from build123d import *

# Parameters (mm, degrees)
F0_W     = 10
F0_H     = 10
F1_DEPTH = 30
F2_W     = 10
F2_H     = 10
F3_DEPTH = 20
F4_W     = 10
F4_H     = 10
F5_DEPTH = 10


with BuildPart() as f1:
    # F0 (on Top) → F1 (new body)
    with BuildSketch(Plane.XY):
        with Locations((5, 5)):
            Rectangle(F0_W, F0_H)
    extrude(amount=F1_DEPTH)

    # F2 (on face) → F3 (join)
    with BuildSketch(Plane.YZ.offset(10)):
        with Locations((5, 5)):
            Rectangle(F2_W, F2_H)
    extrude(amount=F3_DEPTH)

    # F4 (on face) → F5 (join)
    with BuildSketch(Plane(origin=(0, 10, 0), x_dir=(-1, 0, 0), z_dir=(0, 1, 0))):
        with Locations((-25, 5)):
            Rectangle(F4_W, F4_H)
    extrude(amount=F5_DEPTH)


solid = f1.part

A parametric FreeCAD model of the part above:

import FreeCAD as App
import Part
import Sketcher
from FreeCAD import Vector

doc = App.newDocument("Part")
body = doc.addObject("PartDesign::Body", "Body")

sketch1 = doc.addObject("Sketcher::SketchObject", "Sketch")
body.addObject(sketch1)
sketch1.AttachmentSupport = (doc.XY_Plane, [""])
sketch1.MapMode = "FlatFace"
sketch1.addGeometry([
    Part.LineSegment(Vector(0, 10, 0), Vector(0, 0, 0)),
    Part.LineSegment(Vector(0, 0, 0), Vector(10, 0, 0)),
    Part.LineSegment(Vector(10, 0, 0), Vector(10, 10, 0)),
    Part.LineSegment(Vector(10, 10, 0), Vector(0, 10, 0)),
], False)
sketch1.addConstraint([
    Sketcher.Constraint("Coincident", 0, 2, 1, 1),
    Sketcher.Constraint("Coincident", 1, 2, 2, 1),
    Sketcher.Constraint("Coincident", 2, 2, 3, 1),
    Sketcher.Constraint("Coincident", 3, 2, 0, 1),
    Sketcher.Constraint("Vertical", 0),
    Sketcher.Constraint("Horizontal", 1),
    Sketcher.Constraint("Vertical", 2),
    Sketcher.Constraint("Horizontal", 3),
    Sketcher.Constraint("Coincident", 0, 2, -1, 1),
    Sketcher.Constraint("Equal", 3, 0),
    Sketcher.Constraint("DistanceX", 1, 1, 1, 2, 10.0),
])
pad1 = doc.addObject("PartDesign::Pad", "Pad")
body.addObject(pad1)
pad1.Profile = sketch1
pad1.Length = 30

sketch2 = doc.addObject("Sketcher::SketchObject", "Sketch001")
body.addObject(sketch2)
sketch2.AttachmentSupport = (doc.YZ_Plane, [""])
sketch2.MapMode = "FlatFace"
sketch2.AttachmentOffset = App.Placement(Vector(0, 0, 10), App.Rotation())
sketch2.addGeometry([
    Part.LineSegment(Vector(0, 10, 0), Vector(0, 0, 0)),
    Part.LineSegment(Vector(0, 0, 0), Vector(10, 0, 0)),
    Part.LineSegment(Vector(10, 0, 0), Vector(10, 10, 0)),
    Part.LineSegment(Vector(10, 10, 0), Vector(0, 10, 0)),
], False)
sketch2.addConstraint([
    Sketcher.Constraint("Coincident", 0, 2, 1, 1),
    Sketcher.Constraint("Coincident", 1, 2, 2, 1),
    Sketcher.Constraint("Coincident", 2, 2, 3, 1),
    Sketcher.Constraint("Coincident", 3, 2, 0, 1),
    Sketcher.Constraint("Vertical", 0),
    Sketcher.Constraint("Horizontal", 1),
    Sketcher.Constraint("Vertical", 2),
    Sketcher.Constraint("Horizontal", 3),
    Sketcher.Constraint("Coincident", 0, 2, -1, 1),
    Sketcher.Constraint("Equal", 3, 0),
    Sketcher.Constraint("DistanceX", 1, 1, 1, 2, 10.0),
])
pad2 = doc.addObject("PartDesign::Pad", "Pad001")
body.addObject(pad2)
pad2.Profile = sketch2
pad2.Length = 20

sketch3 = doc.addObject("Sketcher::SketchObject", "Sketch002")
body.addObject(sketch3)
sketch3.AttachmentSupport = (doc.XZ_Plane, [""])
sketch3.MapMode = "FlatFace"
sketch3.AttachmentOffset = App.Placement(Vector(0, 0, -10), App.Rotation())
sketch3.addGeometry([
    Part.LineSegment(Vector(30, 10, 0), Vector(30, 0, 0)),
    Part.LineSegment(Vector(30, 0, 0), Vector(20, 0, 0)),
    Part.LineSegment(Vector(20, 0, 0), Vector(20, 10, 0)),
    Part.LineSegment(Vector(20, 10, 0), Vector(30, 10, 0)),
], False)
sketch3.addConstraint([
    Sketcher.Constraint("Coincident", 0, 2, 1, 1),
    Sketcher.Constraint("Coincident", 1, 2, 2, 1),
    Sketcher.Constraint("Coincident", 2, 2, 3, 1),
    Sketcher.Constraint("Coincident", 3, 2, 0, 1),
    Sketcher.Constraint("Vertical", 0),
    Sketcher.Constraint("Horizontal", 1),
    Sketcher.Constraint("Vertical", 2),
    Sketcher.Constraint("Horizontal", 3),
    Sketcher.Constraint("PointOnObject", 0, 2, -1),
    Sketcher.Constraint("Equal", 3, 0),
    Sketcher.Constraint("DistanceX", 1, 2, 1, 1, 10.0),
    Sketcher.Constraint("DistanceX", -1, 1, 0, 2, 30.0),
])
pad3 = doc.addObject("PartDesign::Pad", "Pad002")
body.addObject(pad3)
pad3.Profile = sketch3
pad3.Length = 10
pad3.Reversed = True

doc.recompute()
